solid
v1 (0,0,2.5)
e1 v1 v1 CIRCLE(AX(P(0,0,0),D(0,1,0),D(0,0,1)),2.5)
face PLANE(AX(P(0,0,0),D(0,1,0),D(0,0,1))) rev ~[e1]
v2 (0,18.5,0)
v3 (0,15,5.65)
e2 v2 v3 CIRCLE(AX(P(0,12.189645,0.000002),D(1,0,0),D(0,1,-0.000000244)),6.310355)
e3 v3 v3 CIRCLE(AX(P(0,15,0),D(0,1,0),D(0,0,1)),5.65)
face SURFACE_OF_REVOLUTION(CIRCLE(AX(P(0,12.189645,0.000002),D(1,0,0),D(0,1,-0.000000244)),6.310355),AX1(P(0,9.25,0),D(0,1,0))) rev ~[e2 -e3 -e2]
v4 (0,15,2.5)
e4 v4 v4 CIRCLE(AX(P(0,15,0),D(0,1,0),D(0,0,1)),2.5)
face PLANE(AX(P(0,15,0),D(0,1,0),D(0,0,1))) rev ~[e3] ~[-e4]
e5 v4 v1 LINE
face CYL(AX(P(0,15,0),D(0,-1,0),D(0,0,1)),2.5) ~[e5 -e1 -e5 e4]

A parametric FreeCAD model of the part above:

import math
import FreeCAD as App
import Part
import Sketcher

V = App.Vector

doc = App.newDocument("Part")
params = doc.addObject("Spreadsheet::Sheet", "Params")
for row, (alias, value) in enumerate([
    ("sketch1_width", "15 mm"),
    ("sketch1_width2", "18.5 mm"),
    ("sketch1_height", "2.5 mm"),
    ("sketch1_height2", "3.15 mm"),
    ("revolution_angle", "360 deg"),
], start=1):
    params.set(f"A{row}", alias)
    params.set(f"B{row}", "=" + value)
    params.setAlias(f"B{row}", alias)

body = doc.addObject("PartDesign::Body", "Body")

sketch1 = body.newObject("Sketcher::SketchObject", "Sketch")
sketch1.AttachmentSupport = (doc.getObject("YZ_Plane"), [""])
sketch1.MapMode = "FlatFace"
sketch1.addGeometry(Part.LineSegment(V(0, 2.5, 0), V(0, 0, 0)), False)
sketch1.addGeometry(Part.LineSegment(V(0, 0, 0), V(18.5, 0, 0)), False)
sketch1.addGeometry(Part.ArcOfCircle(Part.Circle(V(12.2, 0, 0), V(0, 0, 1), 6.3), math.radians(0), math.radians(64)), False)
sketch1.addGeometry(Part.LineSegment(V(15, 5.7, 0), V(15, 2.5, 0)), False)
sketch1.addGeometry(Part.LineSegment(V(15, 2.5, 0), V(0, 2.5, 0)), False)
sketch1.addConstraint(Sketcher.Constraint("Coincident", 0, 2, 1, 1))
sketch1.addConstraint(Sketcher.Constraint("Coincident", 1, 2, 2, 1))
sketch1.addConstraint(Sketcher.Constraint("Coincident", 2, 2, 3, 1))
sketch1.addConstraint(Sketcher.Constraint("Coincident", 3, 2, 4, 1))
sketch1.addConstraint(Sketcher.Constraint("Coincident", 4, 2, 0, 1))
sketch1.addConstraint(Sketcher.Constraint("Vertical", 0))
sketch1.addConstraint(Sketcher.Constraint("Horizontal", 1))
sketch1.addConstraint(Sketcher.Constraint("Vertical", 3))
sketch1.addConstraint(Sketcher.Constraint("Horizontal", 4))
sketch1.addConstraint(Sketcher.Constraint("Coincident", 0, 2, -1, 1))
sketch1.addConstraint(Sketcher.Constraint("PointOnObject", 2, 3, -1))
sketch1.addConstraint(Sketcher.Constraint("DistanceX", 4, 2, 4, 1, 15.0))
sketch1.addConstraint(Sketcher.Constraint("DistanceX", 1, 1, 1, 2, 18.5))
sketch1.addConstraint(Sketcher.Constraint("DistanceY", 0, 2, 0, 1, 2.5))
sketch1.addConstraint(Sketcher.Constraint("DistanceY", 3, 2, 3, 1, 3.15))
sketch1.setExpression("Constraints[11]", "Params.sketch1_width")
sketch1.setExpression("Constraints[12]", "Params.sketch1_width2")
sketch1.setExpression("Constraints[13]", "Params.sketch1_height")
sketch1.setExpression("Constraints[14]", "Params.sketch1_height2")
revolution = body.newObject("PartDesign::Revolution", "Revolution")
revolution.Profile = sketch1
revolution.ReferenceAxis = (sketch1, ["H_Axis"])
revolution.setExpression("Angle", "Params.revolution_angle")

doc.recompute()
